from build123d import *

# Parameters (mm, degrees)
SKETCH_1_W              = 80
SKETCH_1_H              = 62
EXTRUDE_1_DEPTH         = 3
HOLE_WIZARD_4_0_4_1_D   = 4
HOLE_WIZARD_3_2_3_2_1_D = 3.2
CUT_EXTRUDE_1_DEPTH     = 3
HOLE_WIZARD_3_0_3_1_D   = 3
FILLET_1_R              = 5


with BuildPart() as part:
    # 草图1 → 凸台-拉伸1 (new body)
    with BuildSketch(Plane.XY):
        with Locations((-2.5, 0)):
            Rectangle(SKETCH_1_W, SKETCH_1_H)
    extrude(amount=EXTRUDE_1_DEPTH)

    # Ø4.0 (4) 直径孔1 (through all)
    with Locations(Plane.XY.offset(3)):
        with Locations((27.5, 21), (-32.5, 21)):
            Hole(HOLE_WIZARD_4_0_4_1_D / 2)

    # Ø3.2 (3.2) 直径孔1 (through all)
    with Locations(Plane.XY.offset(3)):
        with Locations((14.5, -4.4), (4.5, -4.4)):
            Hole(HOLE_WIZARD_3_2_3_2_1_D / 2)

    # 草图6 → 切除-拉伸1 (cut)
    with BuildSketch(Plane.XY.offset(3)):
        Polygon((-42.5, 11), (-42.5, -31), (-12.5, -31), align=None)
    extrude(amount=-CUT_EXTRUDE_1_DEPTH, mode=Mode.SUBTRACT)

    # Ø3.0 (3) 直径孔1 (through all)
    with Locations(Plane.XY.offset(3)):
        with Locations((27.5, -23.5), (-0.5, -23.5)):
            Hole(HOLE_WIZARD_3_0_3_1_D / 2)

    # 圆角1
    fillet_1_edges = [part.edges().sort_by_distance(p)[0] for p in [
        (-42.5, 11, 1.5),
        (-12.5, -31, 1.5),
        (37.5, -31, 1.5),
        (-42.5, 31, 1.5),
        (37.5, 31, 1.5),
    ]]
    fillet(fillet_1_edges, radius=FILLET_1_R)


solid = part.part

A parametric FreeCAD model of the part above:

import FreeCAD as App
import Part
import Sketcher
from FreeCAD import Vector


def edges_at(feature, points):
    """Names of the edges that pass closest to the given points."""
    edges = feature.Shape.Edges
    near = lambda p: min(range(len(edges)), key=lambda i: edges[i].distToShape(Part.Vertex(*p))[0])
    return sorted({f"Edge{near(p) + 1}" for p in points})


def add_polygon(sketch, points):
    """Adds a closed chain of lines whose ends are joined by coincident constraints."""
    first, n = sketch.GeometryCount, len(points)
    for a, b in zip(points, points[1:] + points[:1]):
        sketch.addGeometry(Part.LineSegment(App.Vector(*a, 0), App.Vector(*b, 0)), False)
    for i in range(n):
        sketch.addConstraint(Sketcher.Constraint("Coincident", first + i, 2, first + (i + 1) % n, 1))

doc = App.newDocument("Part")
params = doc.addObject("Spreadsheet::Sheet", "Params")
for row, (alias, value) in enumerate([
    ("sketch1_width", "80 mm"),
    ("sketch1_height", "62 mm"),
    ("pad1_length", "3 mm"),
    ("sketch2_diameter", "4 mm"),
    ("hole_diameter", "4 mm"),
    ("sketch3_diameter", "3.2 mm"),
    ("hole2_diameter", "3.2 mm"),
    ("sketch4_width", "30 mm"),
    ("sketch4_height", "42 mm"),
    ("pocket1_length", "3 mm"),
    ("sketch5_diameter", "3 mm"),
    ("hole3_diameter", "3 mm"),
    ("fillet_radius", "5 mm"),
], start=1):
    params.set(f"A{row}", alias)
    params.set(f"B{row}", "=" + value)
    params.setAlias(f"B{row}", alias)

body = doc.addObject("PartDesign::Body", "Body")

# Sketch on XY plane
sketch1 = body.newObject("Sketcher::SketchObject", "Sketch")
sketch1.AttachmentSupport = (doc.getObject("XY_Plane"), [""])
sketch1.MapMode = "FlatFace"
add_polygon(sketch1, [(-42, 31), (-42, -31), (38, -31), (38, 31)])  # lines 0-3
sketch1.addConstraint([
    Sketcher.Constraint("Vertical", 0),
    Sketcher.Constraint("Horizontal", 1),
    Sketcher.Constraint("Vertical", 2),
    Sketcher.Constraint("Horizontal", 3),
    Sketcher.Constraint("DistanceX", 1, 1, 1, 2, 80.0),
    Sketcher.Constraint("DistanceY", 0, 2, 0, 1, 62.0),
    Sketcher.Constraint("DistanceY", 0, 2, -1, 1, 31.0),
    Sketcher.Constraint("DistanceX", 0, 2, -1, 1, 42.5),
])
sketch1.setExpression("Constraints[8]", "Params.sketch1_width")
sketch1.setExpression("Constraints[9]", "Params.sketch1_height")
pad1 = body.newObject("PartDesign::Pad", "Pad")
pad1.Profile = sketch1
pad1.setExpression("Length", "Params.pad1_length")

# Sketch on XY plane
sketch2 = body.newObject("Sketcher::SketchObject", "Sketch001")
sketch2.AttachmentSupport = (doc.getObject("XY_Plane"), [""])
sketch2.MapMode = "FlatFace"
sketch2.AttachmentOffset = App.Placement(Vector(0, 0, 3), App.Rotation())
sketch2.addGeometry([
    Part.Circle(Vector(27.5, 21, 0), Vector(0, 0, 1), 2),
    Part.Circle(Vector(-32.5, 21, 0), Vector(0, 0, 1), 2),
], False)
sketch2.addConstraint([
    Sketcher.Constraint("Equal", 0, 1),
    Sketcher.Constraint("Horizontal", 0, 3, 1, 3),
    Sketcher.Constraint("Diameter", 0, 4.0),
    Sketcher.Constraint("DistanceY", -1, 1, 0, 3, 21.0),
    Sketcher.Constraint("DistanceX", 1, 3, 0, 3, 60.0),
    Sketcher.Constraint("DistanceX", -1, 1, 0, 3, 27.5),
])
sketch2.setExpression("Constraints[2]", "Params.sketch2_diameter")
doc.recompute()
hole = body.newObject("PartDesign::Hole", "Hole")
hole.Profile = sketch2
hole.ThreadType = "None"
hole.setExpression("Diameter", "Params.hole_diameter")
hole.DepthType = "ThroughAll"

# Sketch on XY plane
sketch3 = body.newObject("Sketcher::SketchObject", "Sketch002")
sketch3.AttachmentSupport = (doc.getObject("XY_Plane"), [""])
sketch3.MapMode = "FlatFace"
sketch3.AttachmentOffset = App.Placement(Vector(0, 0, 3), App.Rotation())
sketch3.addGeometry([
    Part.Circle(Vector(14.5, -4.4, 0), Vector(0, 0, 1), 1.6),
    Part.Circle(Vector(4.5, -4.4, 0), Vector(0, 0, 1), 1.6),
], False)
sketch3.addConstraint([
    Sketcher.Constraint("Equal", 0, 1),
    Sketcher.Constraint("Horizontal", 0, 3, 1, 3),
    Sketcher.Constraint("Diameter", 0, 3.2),
    Sketcher.Constraint("DistanceX", 1, 3, 0, 3, 10.0),
    Sketcher.Constraint("DistanceX", -1, 1, 0, 3, 14.5),
    Sketcher.Constraint("DistanceY", 0, 3, -1, 1, 4.4),
])
sketch3.setExpression("Constraints[2]", "Params.sketch3_diameter")
doc.recompute()
hole2 = body.newObject("PartDesign::Hole", "Hole001")
hole2.Profile = sketch3
hole2.ThreadType = "None"
hole2.setExpression("Diameter", "Params.hole2_diameter")
hole2.DepthType = "ThroughAll"

# Sketch on XY plane
sketch4 = body.newObject("Sketcher::SketchObject", "Sketch003")
sketch4.AttachmentSupport = (doc.getObject("XY_Plane"), [""])
sketch4.MapMode = "FlatFace"
sketch4.AttachmentOffset = App.Placement(Vector(0, 0, 3), App.Rotation())
add_polygon(sketch4, [(-42, 11), (-42, -31), (-12, -31)])  # lines 0-2
sketch4.addConstraint([
    Sketcher.Constraint("Vertical", 0),
    Sketcher.Constraint("Horizontal", 1),
    Sketcher.Constraint("DistanceX", 1, 1, 1, 2, 30.0),
    Sketcher.Constraint("DistanceY", 0, 2, 0, 1, 42.0),
    Sketcher.Constraint("DistanceY", 0, 2, -1, 1, 31.0),
    Sketcher.Constraint("DistanceX", 0, 2, -1, 1, 42.5),
])
sketch4.setExpression("Constraints[5]", "Params.sketch4_width")
sketch4.setExpression("Constraints[6]", "Params.sketch4_height")
pocket1 = body.newObject("PartDesign::Pocket", "Pocket")
pocket1.Profile = sketch4
pocket1.setExpression("Length", "Params.pocket1_length")

# Sketch on XY plane
sketch5 = body.newObject("Sketcher::SketchObject", "Sketch004")
sketch5.AttachmentSupport = (doc.getObject("XY_Plane"), [""])
sketch5.MapMode = "FlatFace"
sketch5.AttachmentOffset = App.Placement(Vector(0, 0, 3), App.Rotation())
sketch5.addGeometry([
    Part.Circle(Vector(27.5, -23.5, 0), Vector(0, 0, 1), 1.5),
    Part.Circle(Vector(-0.5, -23.5, 0), Vector(0, 0, 1), 1.5),
], False)
sketch5.addConstraint([
    Sketcher.Constraint("Equal", 0, 1),
    Sketcher.Constraint("Horizontal", 0, 3, 1, 3),
    Sketcher.Constraint("Diameter", 0, 3.0),
    Sketcher.Constraint("DistanceX", 1, 3, 0, 3, 28.0),
    Sketcher.Constraint("DistanceX", -1, 1, 0, 3, 27.5),
    Sketcher.Constraint("DistanceY", 0, 3, -1, 1, 23.5),
])
sketch5.setExpression("Constraints[2]", "Params.sketch5_diameter")
doc.recompute()
hole3 = body.newObject("PartDesign::Hole", "Hole002")
hole3.Profile = sketch5
hole3.ThreadType = "None"
hole3.setExpression("Diameter", "Params.hole3_diameter")
hole3.DepthType = "ThroughAll"
doc.recompute()

fillet = body.newObject("PartDesign::Fillet", "Fillet")
fillet.Base = (hole3, edges_at(hole3, [
    (-42.5, 11, 1.5),
    (-12.5, -31, 1.5),
    (37.5, -31, 1.5),
    (-42.5, 31, 1.5),
    (37.5, 31, 1.5),
]))
fillet.setExpression("Radius", "Params.fillet_radius")

doc.recompute()
